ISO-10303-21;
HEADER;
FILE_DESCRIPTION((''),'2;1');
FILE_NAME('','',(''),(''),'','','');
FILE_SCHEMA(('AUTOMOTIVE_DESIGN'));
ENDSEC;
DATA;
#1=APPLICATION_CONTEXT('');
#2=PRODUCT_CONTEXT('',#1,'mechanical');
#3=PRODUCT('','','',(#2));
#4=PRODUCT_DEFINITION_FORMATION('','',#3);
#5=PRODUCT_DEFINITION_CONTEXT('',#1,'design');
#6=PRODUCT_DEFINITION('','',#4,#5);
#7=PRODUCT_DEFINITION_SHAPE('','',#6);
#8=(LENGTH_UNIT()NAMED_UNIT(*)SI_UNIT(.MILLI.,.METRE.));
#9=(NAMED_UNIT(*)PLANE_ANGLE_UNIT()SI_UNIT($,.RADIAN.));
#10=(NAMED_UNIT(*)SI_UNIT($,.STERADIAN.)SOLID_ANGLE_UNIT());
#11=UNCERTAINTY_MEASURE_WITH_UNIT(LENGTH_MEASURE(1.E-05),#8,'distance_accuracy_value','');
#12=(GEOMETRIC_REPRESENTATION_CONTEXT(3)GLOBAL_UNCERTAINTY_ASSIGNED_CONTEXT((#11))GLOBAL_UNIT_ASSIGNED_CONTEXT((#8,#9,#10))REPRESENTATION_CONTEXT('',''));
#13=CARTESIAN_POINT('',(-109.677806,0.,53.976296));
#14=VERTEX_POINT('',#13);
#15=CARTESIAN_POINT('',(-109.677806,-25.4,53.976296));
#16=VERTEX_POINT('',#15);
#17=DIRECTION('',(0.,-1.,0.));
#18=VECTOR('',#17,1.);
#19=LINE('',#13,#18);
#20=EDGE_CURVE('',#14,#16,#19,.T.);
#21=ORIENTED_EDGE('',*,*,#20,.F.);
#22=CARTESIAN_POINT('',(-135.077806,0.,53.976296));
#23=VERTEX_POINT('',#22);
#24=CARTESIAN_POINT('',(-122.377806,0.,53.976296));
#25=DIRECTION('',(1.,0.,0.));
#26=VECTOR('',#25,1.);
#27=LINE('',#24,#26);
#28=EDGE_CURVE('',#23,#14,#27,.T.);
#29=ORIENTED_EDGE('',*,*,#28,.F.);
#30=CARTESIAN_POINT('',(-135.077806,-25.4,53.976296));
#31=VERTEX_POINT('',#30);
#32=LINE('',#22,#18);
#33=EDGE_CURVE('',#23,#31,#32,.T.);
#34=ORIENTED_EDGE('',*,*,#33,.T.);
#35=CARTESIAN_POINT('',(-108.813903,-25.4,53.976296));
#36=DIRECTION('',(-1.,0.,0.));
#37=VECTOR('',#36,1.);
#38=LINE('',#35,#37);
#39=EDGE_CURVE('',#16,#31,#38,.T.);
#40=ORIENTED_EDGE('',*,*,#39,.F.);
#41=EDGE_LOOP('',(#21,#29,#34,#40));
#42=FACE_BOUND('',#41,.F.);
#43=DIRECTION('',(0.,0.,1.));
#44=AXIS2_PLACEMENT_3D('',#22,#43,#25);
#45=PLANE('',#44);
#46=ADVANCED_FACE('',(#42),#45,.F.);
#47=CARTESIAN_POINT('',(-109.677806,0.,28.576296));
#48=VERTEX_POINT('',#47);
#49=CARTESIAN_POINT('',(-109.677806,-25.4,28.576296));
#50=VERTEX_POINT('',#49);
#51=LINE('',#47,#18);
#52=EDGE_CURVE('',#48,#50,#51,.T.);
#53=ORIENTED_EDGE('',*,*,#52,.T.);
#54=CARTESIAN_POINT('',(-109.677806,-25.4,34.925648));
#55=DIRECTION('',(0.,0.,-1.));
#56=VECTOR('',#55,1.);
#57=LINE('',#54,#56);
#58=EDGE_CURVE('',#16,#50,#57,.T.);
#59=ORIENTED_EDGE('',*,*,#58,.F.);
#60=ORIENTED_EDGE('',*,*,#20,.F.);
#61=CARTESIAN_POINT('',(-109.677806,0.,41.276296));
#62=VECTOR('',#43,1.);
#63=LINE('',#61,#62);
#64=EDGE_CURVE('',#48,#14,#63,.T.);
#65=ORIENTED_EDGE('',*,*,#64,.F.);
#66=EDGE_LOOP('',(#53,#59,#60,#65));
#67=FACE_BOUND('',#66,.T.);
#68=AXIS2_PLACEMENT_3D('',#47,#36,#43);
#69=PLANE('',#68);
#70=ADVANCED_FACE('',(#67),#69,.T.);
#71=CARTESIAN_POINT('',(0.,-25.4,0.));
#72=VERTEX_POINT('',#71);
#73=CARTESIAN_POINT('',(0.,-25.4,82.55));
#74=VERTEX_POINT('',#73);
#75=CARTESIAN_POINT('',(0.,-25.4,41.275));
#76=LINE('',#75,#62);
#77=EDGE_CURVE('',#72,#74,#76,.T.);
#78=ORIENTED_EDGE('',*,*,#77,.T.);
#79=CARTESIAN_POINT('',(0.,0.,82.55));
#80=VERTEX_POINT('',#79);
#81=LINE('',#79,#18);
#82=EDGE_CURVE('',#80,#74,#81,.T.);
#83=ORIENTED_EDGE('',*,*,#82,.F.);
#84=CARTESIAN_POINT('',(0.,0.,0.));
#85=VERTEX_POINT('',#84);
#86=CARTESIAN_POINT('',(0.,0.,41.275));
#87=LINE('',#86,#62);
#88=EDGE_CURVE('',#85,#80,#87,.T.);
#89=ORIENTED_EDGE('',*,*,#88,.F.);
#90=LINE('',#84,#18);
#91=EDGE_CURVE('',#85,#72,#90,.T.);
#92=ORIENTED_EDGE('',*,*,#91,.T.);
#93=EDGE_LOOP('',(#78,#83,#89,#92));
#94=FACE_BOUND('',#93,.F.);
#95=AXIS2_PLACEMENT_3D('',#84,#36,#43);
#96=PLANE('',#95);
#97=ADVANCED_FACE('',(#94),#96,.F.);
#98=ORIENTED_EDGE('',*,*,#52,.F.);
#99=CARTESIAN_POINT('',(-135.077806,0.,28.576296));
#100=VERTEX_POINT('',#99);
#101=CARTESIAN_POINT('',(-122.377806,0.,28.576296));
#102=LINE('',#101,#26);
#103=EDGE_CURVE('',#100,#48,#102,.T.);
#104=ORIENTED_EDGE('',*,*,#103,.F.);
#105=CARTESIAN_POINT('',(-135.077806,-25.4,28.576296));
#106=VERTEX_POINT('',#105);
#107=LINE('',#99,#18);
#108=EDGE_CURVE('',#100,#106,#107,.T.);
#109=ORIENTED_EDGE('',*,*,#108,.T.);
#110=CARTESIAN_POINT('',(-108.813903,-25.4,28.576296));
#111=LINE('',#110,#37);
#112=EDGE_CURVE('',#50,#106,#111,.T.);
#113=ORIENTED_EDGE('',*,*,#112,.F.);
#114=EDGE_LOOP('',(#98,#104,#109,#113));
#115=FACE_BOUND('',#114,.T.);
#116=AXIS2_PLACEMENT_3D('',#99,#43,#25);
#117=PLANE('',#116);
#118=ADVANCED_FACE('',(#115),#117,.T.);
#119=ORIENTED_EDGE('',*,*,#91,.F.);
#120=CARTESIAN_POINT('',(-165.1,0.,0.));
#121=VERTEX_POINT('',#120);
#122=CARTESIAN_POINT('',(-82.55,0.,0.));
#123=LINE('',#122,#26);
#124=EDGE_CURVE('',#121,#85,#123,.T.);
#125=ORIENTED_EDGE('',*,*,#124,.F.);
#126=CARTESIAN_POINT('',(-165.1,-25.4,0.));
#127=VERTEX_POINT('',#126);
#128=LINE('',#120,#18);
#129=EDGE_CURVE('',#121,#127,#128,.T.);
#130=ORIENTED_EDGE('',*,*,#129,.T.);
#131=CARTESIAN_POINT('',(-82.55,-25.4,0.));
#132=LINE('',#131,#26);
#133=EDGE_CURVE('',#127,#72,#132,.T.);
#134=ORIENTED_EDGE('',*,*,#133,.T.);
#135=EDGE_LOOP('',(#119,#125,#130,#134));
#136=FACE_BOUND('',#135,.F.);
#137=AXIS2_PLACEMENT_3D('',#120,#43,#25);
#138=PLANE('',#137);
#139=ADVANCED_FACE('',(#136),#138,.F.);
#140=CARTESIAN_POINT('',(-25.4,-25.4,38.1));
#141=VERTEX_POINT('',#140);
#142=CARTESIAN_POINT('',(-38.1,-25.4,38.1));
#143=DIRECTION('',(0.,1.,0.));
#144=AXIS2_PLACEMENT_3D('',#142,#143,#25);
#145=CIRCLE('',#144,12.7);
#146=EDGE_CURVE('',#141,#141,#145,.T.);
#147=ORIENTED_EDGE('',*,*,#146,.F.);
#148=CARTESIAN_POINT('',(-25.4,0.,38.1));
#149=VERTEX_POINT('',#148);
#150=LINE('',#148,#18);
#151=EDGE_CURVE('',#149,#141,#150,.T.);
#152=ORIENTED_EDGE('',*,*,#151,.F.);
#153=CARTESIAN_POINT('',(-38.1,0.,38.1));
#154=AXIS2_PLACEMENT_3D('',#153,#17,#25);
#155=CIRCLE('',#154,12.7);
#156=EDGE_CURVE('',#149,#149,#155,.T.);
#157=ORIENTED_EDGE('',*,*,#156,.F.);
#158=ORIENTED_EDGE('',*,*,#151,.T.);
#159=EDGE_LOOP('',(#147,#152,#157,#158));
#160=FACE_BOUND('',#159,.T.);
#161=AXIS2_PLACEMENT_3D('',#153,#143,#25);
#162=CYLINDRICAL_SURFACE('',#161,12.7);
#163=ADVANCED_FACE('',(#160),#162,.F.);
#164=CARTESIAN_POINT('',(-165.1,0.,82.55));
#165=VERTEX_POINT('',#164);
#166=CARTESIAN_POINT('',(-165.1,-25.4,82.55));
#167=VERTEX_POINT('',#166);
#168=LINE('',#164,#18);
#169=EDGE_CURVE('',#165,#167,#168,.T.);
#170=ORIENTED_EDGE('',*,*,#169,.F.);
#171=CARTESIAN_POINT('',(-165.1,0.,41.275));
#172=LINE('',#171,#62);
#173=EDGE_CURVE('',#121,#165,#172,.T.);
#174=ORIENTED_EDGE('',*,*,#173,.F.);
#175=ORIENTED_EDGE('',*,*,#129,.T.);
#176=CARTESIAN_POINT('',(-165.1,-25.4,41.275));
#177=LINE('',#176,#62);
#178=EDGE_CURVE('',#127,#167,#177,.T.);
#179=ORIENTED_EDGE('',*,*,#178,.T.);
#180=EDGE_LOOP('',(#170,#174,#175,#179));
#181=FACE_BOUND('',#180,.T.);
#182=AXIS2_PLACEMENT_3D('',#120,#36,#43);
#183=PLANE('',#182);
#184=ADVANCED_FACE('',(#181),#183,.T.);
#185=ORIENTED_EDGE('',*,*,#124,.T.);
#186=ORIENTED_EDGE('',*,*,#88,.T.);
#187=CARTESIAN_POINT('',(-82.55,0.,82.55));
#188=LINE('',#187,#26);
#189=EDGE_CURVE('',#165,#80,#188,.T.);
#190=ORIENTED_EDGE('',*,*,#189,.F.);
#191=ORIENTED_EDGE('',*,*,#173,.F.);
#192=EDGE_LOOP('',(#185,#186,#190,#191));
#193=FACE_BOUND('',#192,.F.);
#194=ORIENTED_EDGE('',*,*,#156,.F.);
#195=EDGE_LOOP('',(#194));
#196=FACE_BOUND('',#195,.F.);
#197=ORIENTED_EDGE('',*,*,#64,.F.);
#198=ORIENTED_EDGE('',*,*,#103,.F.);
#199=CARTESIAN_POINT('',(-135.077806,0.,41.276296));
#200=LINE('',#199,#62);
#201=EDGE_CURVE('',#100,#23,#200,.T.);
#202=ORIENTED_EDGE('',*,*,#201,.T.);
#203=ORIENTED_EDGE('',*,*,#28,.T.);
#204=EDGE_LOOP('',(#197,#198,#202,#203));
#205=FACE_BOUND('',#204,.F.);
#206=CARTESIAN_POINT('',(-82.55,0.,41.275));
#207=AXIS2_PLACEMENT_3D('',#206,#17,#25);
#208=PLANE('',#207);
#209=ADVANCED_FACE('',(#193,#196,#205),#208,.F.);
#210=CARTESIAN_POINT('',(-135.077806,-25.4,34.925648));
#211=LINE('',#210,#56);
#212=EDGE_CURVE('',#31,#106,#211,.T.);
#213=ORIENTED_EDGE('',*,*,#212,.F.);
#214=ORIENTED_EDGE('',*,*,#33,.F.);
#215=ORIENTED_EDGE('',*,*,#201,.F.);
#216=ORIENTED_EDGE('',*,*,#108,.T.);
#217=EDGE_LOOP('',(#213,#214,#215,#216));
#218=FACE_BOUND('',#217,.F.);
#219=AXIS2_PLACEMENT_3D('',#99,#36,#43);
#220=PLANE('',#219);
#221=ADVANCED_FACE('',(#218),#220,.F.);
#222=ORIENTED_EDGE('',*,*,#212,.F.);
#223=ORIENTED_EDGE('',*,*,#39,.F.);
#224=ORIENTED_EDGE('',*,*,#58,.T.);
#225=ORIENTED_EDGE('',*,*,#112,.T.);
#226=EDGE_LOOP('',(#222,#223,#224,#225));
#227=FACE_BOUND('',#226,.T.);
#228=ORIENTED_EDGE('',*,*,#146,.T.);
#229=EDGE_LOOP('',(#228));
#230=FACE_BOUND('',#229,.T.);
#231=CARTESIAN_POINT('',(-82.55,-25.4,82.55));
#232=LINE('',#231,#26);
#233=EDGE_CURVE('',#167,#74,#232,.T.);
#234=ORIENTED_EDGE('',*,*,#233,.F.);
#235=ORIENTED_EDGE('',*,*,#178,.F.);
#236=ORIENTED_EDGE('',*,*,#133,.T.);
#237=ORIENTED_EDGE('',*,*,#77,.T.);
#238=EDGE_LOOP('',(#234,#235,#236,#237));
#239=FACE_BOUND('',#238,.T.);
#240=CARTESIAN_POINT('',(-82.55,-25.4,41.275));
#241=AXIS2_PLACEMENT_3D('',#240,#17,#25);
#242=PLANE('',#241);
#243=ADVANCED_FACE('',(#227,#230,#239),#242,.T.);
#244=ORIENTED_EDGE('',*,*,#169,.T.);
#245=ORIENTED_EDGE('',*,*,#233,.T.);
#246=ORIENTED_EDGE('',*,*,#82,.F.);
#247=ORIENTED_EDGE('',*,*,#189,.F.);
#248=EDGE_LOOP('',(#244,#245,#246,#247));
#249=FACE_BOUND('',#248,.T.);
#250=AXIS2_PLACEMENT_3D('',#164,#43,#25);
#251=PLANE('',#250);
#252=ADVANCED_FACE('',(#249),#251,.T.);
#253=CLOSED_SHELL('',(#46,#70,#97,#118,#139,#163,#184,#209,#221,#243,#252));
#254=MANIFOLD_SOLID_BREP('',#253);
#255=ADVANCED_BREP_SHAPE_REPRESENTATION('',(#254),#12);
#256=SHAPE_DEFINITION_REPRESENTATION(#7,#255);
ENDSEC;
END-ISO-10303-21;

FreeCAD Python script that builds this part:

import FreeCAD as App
import Part
import Sketcher
Q = App.Units.Quantity


def add_polygon(sketch, points):
    """Adds a closed chain of lines whose ends are joined by coincident constraints."""
    first, n = sketch.GeometryCount, len(points)
    for a, b in zip(points, points[1:] + points[:1]):
        sketch.addGeometry(Part.LineSegment(App.Vector(*a, 0), App.Vector(*b, 0)), False)
    for i in range(n):
        sketch.addConstraint(Sketcher.Constraint("Coincident", first + i, 2, first + (i + 1) % n, 1))

doc = App.newDocument("Part")
params = doc.addObject("Spreadsheet::Sheet", "Params")
for row, (alias, value) in enumerate([
    ("sketch1_width", "6.5 in"),
    ("sketch1_height", "3.25 in"),
    ("pad1_length", "1 in"),
    ("sketch2_width", "1 in"),
    ("pocket1_length", "32 in"),
    ("sketch3_diameter", "1 in"),
    ("pocket2_length", "69 in"),
], start=1):
    params.set(f"A{row}", alias)
    params.set(f"B{row}", "=" + value)
    params.setAlias(f"B{row}", alias)

body = doc.addObject("PartDesign::Body", "Body")

# Sketch on XZ plane
sketch1 = body.newObject("Sketcher::SketchObject", "Sketch")
sketch1.AttachmentSupport = (doc.getObject("XZ_Plane"), [""])
sketch1.MapMode = "FlatFace"
add_polygon(sketch1, [(-165, 83), (-165, 0), (0, 0), (0, 83)])  # lines 0-3
sketch1.addConstraint([
    Sketcher.Constraint("Vertical", 0),
    Sketcher.Constraint("Horizontal", 1),
    Sketcher.Constraint("Vertical", 2),
    Sketcher.Constraint("Horizontal", 3),
    Sketcher.Constraint("Coincident", 1, 2, -1, 1),
    Sketcher.Constraint("DistanceX", 1, 1, 1, 2, Q("6.5 in")),
    Sketcher.Constraint("DistanceY", 0, 2, 0, 1, Q("3.25 in")),
])
sketch1.setExpression("Constraints[9]", "Params.sketch1_width")
sketch1.setExpression("Constraints[10]", "Params.sketch1_height")
pad1 = body.newObject("PartDesign::Pad", "Pad")
pad1.Profile = sketch1
pad1.setExpression("Length", "Params.pad1_length")

# Sketch on XZ plane
sketch2 = body.newObject("Sketcher::SketchObject", "Sketch001")
sketch2.AttachmentSupport = (doc.getObject("XZ_Plane"), [""])
sketch2.MapMode = "FlatFace"
add_polygon(sketch2, [(-135, 54), (-135, 29), (-110, 29), (-110, 54)])  # lines 0-3
sketch2.addConstraint([
    Sketcher.Constraint("Vertical", 0),
    Sketcher.Constraint("Horizontal", 1),
    Sketcher.Constraint("Vertical", 2),
    Sketcher.Constraint("Horizontal", 3),
    Sketcher.Constraint("Equal", 3, 0),
    Sketcher.Constraint("DistanceX", 1, 1, 1, 2, Q("1 in")),
    Sketcher.Constraint("DistanceX", 0, 2, -1, 1, 135.077806),
    Sketcher.Constraint("DistanceY", -1, 1, 0, 2, 28.576296),
])
sketch2.setExpression("Constraints[9]", "Params.sketch2_width")
pocket1 = body.newObject("PartDesign::Pocket", "Pocket")
pocket1.Profile = sketch2
pocket1.setExpression("Length", "Params.pocket1_length")
pocket1.Reversed = True

# Sketch on XZ plane
sketch3 = body.newObject("Sketcher::SketchObject", "Sketch002")
sketch3.AttachmentSupport = (doc.getObject("XZ_Plane"), [""])
sketch3.MapMode = "FlatFace"
sketch3.addGeometry(Part.Circle(App.Vector(-38, 38, 0), App.Vector(0, 0, 1), 13), False)
sketch3.addConstraint([
    Sketcher.Constraint("Diameter", 0, Q("1 in")),
    Sketcher.Constraint("DistanceX", 0, 3, -1, 1, Q("1.5 in")),
    Sketcher.Constraint("DistanceY", -1, 1, 0, 3, Q("1.5 in")),
])
sketch3.setExpression("Constraints[0]", "Params.sketch3_diameter")
pocket2 = body.newObject("PartDesign::Pocket", "Pocket001")
pocket2.Profile = sketch3
pocket2.setExpression("Length", "Params.pocket2_length")
pocket2.Reversed = True

doc.recompute()
